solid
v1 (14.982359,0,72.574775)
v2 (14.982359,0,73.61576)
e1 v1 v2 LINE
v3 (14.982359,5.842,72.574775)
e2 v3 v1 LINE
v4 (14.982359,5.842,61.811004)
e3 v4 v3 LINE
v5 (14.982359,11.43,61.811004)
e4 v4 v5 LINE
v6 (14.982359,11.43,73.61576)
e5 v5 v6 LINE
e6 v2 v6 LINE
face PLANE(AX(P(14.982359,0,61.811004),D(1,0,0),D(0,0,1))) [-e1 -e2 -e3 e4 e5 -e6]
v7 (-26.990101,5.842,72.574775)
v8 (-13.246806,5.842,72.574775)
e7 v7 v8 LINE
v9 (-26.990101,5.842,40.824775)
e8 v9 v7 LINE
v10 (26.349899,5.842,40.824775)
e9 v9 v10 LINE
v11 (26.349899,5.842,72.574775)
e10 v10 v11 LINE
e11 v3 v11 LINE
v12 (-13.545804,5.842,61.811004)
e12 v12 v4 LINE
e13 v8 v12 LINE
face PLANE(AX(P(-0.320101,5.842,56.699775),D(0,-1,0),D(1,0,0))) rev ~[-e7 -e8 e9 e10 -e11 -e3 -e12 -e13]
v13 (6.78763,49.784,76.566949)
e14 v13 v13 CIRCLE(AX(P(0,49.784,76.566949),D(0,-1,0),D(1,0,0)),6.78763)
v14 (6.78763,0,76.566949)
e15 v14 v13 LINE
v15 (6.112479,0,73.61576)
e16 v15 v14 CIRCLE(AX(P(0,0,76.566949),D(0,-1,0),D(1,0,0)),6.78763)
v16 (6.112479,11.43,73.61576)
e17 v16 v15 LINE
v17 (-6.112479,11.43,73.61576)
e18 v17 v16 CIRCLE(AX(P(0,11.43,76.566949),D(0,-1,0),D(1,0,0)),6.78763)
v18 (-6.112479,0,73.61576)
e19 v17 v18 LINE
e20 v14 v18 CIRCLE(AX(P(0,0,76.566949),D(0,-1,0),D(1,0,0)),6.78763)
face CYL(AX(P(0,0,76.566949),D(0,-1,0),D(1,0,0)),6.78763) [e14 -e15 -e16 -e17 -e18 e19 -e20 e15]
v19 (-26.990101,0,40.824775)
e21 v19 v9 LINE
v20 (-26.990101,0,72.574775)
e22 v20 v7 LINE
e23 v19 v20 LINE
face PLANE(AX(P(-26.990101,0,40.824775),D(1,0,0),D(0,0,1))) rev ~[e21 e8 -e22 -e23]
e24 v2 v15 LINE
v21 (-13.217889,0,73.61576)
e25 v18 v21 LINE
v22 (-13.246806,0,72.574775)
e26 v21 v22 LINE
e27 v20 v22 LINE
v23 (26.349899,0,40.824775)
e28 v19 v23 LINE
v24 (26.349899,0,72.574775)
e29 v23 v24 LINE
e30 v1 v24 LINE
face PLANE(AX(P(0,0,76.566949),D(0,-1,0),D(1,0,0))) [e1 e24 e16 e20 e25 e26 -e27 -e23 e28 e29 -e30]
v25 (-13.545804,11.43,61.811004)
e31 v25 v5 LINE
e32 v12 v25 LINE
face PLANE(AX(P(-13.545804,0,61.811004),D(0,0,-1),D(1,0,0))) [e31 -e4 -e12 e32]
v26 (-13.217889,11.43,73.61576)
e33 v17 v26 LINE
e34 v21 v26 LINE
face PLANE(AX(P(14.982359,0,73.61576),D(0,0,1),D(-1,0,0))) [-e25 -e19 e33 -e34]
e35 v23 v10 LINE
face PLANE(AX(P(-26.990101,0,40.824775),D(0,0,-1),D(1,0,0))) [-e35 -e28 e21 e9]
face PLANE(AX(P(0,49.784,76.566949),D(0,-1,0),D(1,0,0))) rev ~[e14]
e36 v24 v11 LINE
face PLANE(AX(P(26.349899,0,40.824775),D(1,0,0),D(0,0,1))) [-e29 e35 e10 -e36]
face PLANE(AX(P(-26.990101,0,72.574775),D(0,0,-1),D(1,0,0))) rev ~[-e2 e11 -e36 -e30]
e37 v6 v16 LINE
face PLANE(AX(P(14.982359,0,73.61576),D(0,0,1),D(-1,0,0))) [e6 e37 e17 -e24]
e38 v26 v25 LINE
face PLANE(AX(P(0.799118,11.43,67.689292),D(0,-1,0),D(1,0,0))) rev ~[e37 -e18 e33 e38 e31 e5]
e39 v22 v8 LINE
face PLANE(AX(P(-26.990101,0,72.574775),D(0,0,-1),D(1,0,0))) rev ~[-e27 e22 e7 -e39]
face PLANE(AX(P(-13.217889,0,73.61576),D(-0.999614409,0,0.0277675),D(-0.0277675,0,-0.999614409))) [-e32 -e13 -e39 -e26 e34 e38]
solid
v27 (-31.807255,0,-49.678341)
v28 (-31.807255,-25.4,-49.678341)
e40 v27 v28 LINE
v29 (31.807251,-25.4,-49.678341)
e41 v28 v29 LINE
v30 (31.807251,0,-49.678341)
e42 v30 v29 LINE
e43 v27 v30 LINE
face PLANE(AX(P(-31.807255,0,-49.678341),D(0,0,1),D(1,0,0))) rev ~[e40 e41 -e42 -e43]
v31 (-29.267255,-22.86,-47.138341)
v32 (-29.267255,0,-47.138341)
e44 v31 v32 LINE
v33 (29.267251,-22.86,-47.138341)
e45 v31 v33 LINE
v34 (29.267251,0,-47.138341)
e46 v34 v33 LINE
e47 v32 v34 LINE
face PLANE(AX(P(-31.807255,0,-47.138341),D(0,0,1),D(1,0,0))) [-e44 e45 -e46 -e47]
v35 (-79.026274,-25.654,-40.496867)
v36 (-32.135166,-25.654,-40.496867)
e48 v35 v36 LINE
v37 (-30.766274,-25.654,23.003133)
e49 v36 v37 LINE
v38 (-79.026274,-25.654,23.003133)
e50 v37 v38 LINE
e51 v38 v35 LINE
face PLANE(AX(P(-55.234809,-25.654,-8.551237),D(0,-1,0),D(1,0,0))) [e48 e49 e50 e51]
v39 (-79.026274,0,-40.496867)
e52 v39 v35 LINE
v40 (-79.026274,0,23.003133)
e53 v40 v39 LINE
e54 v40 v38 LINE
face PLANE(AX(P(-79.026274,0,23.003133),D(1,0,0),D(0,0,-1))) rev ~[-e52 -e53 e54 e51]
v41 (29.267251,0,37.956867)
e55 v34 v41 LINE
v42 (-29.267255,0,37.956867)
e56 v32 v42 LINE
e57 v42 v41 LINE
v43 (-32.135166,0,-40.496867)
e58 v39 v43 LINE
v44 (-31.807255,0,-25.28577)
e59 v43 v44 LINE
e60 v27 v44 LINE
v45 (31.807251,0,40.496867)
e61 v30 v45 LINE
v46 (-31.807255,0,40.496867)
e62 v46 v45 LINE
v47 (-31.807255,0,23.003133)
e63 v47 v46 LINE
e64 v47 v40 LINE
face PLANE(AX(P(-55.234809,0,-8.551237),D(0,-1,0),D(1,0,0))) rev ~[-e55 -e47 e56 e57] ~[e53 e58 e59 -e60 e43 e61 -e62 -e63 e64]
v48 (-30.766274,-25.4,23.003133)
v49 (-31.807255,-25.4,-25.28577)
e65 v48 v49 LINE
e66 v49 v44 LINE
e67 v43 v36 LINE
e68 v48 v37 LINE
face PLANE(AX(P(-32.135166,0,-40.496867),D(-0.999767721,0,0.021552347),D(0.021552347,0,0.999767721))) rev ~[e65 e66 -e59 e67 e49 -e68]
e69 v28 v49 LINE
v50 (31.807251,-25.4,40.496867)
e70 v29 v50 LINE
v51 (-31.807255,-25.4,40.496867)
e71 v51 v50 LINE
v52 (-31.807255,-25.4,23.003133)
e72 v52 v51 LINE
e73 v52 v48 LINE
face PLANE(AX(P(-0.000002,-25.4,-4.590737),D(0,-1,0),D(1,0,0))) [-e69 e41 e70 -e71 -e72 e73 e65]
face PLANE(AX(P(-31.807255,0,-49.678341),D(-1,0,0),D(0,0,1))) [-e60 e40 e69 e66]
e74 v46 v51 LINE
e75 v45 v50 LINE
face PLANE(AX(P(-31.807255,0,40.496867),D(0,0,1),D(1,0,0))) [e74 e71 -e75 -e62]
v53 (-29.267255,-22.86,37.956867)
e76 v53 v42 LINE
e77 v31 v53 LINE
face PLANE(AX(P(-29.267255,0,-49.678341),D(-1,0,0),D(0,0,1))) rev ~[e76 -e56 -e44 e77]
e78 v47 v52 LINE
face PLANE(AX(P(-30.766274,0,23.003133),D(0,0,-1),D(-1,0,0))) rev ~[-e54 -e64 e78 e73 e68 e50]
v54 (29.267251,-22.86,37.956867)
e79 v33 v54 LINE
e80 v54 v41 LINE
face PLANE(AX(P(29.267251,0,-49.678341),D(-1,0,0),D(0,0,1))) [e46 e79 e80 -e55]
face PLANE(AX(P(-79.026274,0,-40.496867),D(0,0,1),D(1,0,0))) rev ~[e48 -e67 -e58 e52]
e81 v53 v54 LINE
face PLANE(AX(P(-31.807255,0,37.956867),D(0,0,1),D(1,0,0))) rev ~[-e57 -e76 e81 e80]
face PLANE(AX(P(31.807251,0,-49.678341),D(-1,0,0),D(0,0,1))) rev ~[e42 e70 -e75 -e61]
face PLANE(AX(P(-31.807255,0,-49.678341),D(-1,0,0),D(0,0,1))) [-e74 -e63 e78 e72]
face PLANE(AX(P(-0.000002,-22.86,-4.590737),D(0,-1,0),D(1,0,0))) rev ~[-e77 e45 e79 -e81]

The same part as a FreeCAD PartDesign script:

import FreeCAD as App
import Part
import Sketcher

V = App.Vector
Q = App.Units.Quantity


def faces_at(feature, points):
    """Names of the faces that lie closest to the given points."""
    faces = feature.Shape.Faces
    near = lambda p: min(range(len(faces)), key=lambda i: faces[i].distToShape(Part.Vertex(*p))[0])
    return sorted({f"Face{near(p) + 1}" for p in points})

doc = App.newDocument("Part")
body = doc.addObject("PartDesign::Body", "Body")

# Sketch on XZ plane
sketch1 = body.newObject("Sketcher::SketchObject", "Sketch")
sketch1.AttachmentSupport = (doc.getObject("XZ_Plane"), [""])
sketch1.MapMode = "FlatFace"
sketch1.addGeometry([
    Part.LineSegment(V(-32, 40, 0), V(-32, -50, 0)),
    Part.LineSegment(V(-32, -50, 0), V(32, -50, 0)),
    Part.LineSegment(V(32, -50, 0), V(32, 40, 0)),
    Part.LineSegment(V(32, 40, 0), V(-32, 40, 0)),
], False)
sketch1.addConstraint([
    Sketcher.Constraint("Coincident", 0, 2, 1, 1),
    Sketcher.Constraint("Coincident", 1, 2, 2, 1),
    Sketcher.Constraint("Coincident", 2, 2, 3, 1),
    Sketcher.Constraint("Coincident", 3, 2, 0, 1),
    Sketcher.Constraint("Vertical", 0),
    Sketcher.Constraint("Horizontal", 1),
    Sketcher.Constraint("Vertical", 2),
    Sketcher.Constraint("Horizontal", 3),
    Sketcher.Constraint("DistanceX", 1, 1, 1, 2, Q("63.614506 mm")),
    Sketcher.Constraint("DistanceY", 0, 2, 0, 1, Q("90.175208 mm")),
    Sketcher.Constraint("DistanceY", 0, 2, -1, 1, Q("49.678341 mm")),
    Sketcher.Constraint("DistanceX", -1, 1, 1, 2, Q("31.807251 mm")),
])
pad1 = body.newObject("PartDesign::Pad", "Pad")
pad1.Profile = sketch1
pad1.Length = Q("1 in")
doc.recompute()

thickness = body.newObject("PartDesign::Thickness", "Thickness")
thickness.Base = (pad1, faces_at(pad1, [(0, 0, -4.591)]))
thickness.Value = Q("0.1 in")
thickness.Reversed = True
thickness.Join = "Arc"

# Sketch on XZ plane
sketch2 = body.newObject("Sketcher::SketchObject", "Sketch001")
sketch2.AttachmentSupport = (doc.getObject("XZ_Plane"), [""])
sketch2.MapMode = "FlatFace"
sketch2.addGeometry([
    Part.LineSegment(V(-32, -40, 0), V(-31, 23, 0)),
    Part.LineSegment(V(-31, 23, 0), V(-79, 23, 0)),
    Part.LineSegment(V(-79, 23, 0), V(-79, -40, 0)),
    Part.LineSegment(V(-79, -40, 0), V(-32, -40, 0)),
], False)
sketch2.addConstraint([
    Sketcher.Constraint("Coincident", 0, 2, 1, 1),
    Sketcher.Constraint("Coincident", 1, 2, 2, 1),
    Sketcher.Constraint("Coincident", 2, 2, 3, 1),
    Sketcher.Constraint("Coincident", 3, 2, 0, 1),
    Sketcher.Constraint("Horizontal", 1),
    Sketcher.Constraint("Vertical", 2),
    Sketcher.Constraint("Horizontal", 3),
    Sketcher.Constraint("DistanceX", 1, 2, 1, 1, Q("1.9 in")),
    Sketcher.Constraint("DistanceY", 2, 2, 2, 1, Q("2.5 in")),
    Sketcher.Constraint("DistanceX", 3, 1, 3, 2, Q("46.891108 mm")),
    Sketcher.Constraint("DistanceX", 0, 2, -1, 1, Q("30.766274 mm")),
    Sketcher.Constraint("DistanceY", -1, 1, 0, 2, Q("23.003133 mm")),
])
pad2 = body.newObject("PartDesign::Pad", "Pad001")
pad2.Profile = sketch2
pad2.Length = Q("1.01 in")
body2 = doc.addObject("PartDesign::Body", "Body001")

# Sketch on XZ plane
sketch3 = body2.newObject("Sketcher::SketchObject", "Sketch002")
sketch3.AttachmentSupport = (doc.getObject("XZ_Plane001"), [""])
sketch3.MapMode = "FlatFace"
sketch3.addGeometry([
    Part.LineSegment(V(-27, 73, 0), V(-27, 41, 0)),
    Part.LineSegment(V(-27, 41, 0), V(26, 41, 0)),
    Part.LineSegment(V(26, 41, 0), V(26, 73, 0)),
    Part.LineSegment(V(26, 73, 0), V(-27, 73, 0)),
], False)
sketch3.addConstraint([
    Sketcher.Constraint("Coincident", 0, 2, 1, 1),
    Sketcher.Constraint("Coincident", 1, 2, 2, 1),
    Sketcher.Constraint("Coincident", 2, 2, 3, 1),
    Sketcher.Constraint("Coincident", 3, 2, 0, 1),
    Sketcher.Constraint("Vertical", 0),
    Sketcher.Constraint("Horizontal", 1),
    Sketcher.Constraint("Vertical", 2),
    Sketcher.Constraint("Horizontal", 3),
    Sketcher.Constraint("DistanceX", 1, 1, 1, 2, Q("2.1 in")),
    Sketcher.Constraint("DistanceY", 0, 2, 0, 1, Q("1.25 in")),
    Sketcher.Constraint("DistanceX", 0, 2, -1, 1, Q("26.990101 mm")),
    Sketcher.Constraint("DistanceY", -1, 1, 0, 2, Q("40.824775 mm")),
])
pad3 = body2.newObject("PartDesign::Pad", "Pad002")
pad3.Profile = sketch3
pad3.Length = Q("0.23 in")
pad3.Reversed = True

# Sketch on XZ plane
sketch4 = body2.newObject("Sketcher::SketchObject", "Sketch003")
sketch4.AttachmentSupport = (doc.getObject("XZ_Plane001"), [""])
sketch4.MapMode = "FlatFace"
sketch4.addGeometry([
    Part.LineSegment(V(-14, 62, 0), V(15, 62, 0)),
    Part.LineSegment(V(15, 62, 0), V(15, 74, 0)),
    Part.LineSegment(V(15, 74, 0), V(-13, 74, 0)),
    Part.LineSegment(V(-13, 74, 0), V(-14, 62, 0)),
], False)
sketch4.addConstraint([
    Sketcher.Constraint("Coincident", 0, 2, 1, 1),
    Sketcher.Constraint("Coincident", 1, 2, 2, 1),
    Sketcher.Constraint("Coincident", 2, 2, 3, 1),
    Sketcher.Constraint("Coincident", 3, 2, 0, 1),
    Sketcher.Constraint("Horizontal", 0),
    Sketcher.Constraint("Vertical", 1),
    Sketcher.Constraint("Horizontal", 2),
    Sketcher.Constraint("DistanceX", 2, 2, 2, 1, Q("28.200248 mm")),
    Sketcher.Constraint("Distance", 3, Q("11.80931 mm")),
    Sketcher.Constraint("DistanceX", 0, 1, 0, 2, Q("28.528163 mm")),
    Sketcher.Constraint("DistanceX", -1, 1, 0, 2, Q("14.982359 mm")),
    Sketcher.Constraint("DistanceY", -1, 1, 1, 2, Q("73.61576 mm")),
])
pad4 = body2.newObject("PartDesign::Pad", "Pad003")
pad4.Profile = sketch4
pad4.Length = Q("0.45 in")
pad4.Reversed = True

# Sketch on XZ plane
sketch5 = body2.newObject("Sketcher::SketchObject", "Sketch004")
sketch5.AttachmentSupport = (doc.getObject("XZ_Plane001"), [""])
sketch5.MapMode = "FlatFace"
sketch5.addGeometry(Part.Circle(V(0, 77, 0), V(0, 0, 1), 7), False)
sketch5.addConstraint([
    Sketcher.Constraint("PointOnObject", 0, 3, -2),
    Sketcher.Constraint("Diameter", 0, Q("13.57526 mm")),
    Sketcher.Constraint("DistanceY", -1, 1, 0, 3, Q("76.566949 mm")),
])
pad5 = body2.newObject("PartDesign::Pad", "Pad004")
pad5.Profile = sketch5
pad5.Length = Q("1.96 in")
pad5.Reversed = True

doc.recompute()
